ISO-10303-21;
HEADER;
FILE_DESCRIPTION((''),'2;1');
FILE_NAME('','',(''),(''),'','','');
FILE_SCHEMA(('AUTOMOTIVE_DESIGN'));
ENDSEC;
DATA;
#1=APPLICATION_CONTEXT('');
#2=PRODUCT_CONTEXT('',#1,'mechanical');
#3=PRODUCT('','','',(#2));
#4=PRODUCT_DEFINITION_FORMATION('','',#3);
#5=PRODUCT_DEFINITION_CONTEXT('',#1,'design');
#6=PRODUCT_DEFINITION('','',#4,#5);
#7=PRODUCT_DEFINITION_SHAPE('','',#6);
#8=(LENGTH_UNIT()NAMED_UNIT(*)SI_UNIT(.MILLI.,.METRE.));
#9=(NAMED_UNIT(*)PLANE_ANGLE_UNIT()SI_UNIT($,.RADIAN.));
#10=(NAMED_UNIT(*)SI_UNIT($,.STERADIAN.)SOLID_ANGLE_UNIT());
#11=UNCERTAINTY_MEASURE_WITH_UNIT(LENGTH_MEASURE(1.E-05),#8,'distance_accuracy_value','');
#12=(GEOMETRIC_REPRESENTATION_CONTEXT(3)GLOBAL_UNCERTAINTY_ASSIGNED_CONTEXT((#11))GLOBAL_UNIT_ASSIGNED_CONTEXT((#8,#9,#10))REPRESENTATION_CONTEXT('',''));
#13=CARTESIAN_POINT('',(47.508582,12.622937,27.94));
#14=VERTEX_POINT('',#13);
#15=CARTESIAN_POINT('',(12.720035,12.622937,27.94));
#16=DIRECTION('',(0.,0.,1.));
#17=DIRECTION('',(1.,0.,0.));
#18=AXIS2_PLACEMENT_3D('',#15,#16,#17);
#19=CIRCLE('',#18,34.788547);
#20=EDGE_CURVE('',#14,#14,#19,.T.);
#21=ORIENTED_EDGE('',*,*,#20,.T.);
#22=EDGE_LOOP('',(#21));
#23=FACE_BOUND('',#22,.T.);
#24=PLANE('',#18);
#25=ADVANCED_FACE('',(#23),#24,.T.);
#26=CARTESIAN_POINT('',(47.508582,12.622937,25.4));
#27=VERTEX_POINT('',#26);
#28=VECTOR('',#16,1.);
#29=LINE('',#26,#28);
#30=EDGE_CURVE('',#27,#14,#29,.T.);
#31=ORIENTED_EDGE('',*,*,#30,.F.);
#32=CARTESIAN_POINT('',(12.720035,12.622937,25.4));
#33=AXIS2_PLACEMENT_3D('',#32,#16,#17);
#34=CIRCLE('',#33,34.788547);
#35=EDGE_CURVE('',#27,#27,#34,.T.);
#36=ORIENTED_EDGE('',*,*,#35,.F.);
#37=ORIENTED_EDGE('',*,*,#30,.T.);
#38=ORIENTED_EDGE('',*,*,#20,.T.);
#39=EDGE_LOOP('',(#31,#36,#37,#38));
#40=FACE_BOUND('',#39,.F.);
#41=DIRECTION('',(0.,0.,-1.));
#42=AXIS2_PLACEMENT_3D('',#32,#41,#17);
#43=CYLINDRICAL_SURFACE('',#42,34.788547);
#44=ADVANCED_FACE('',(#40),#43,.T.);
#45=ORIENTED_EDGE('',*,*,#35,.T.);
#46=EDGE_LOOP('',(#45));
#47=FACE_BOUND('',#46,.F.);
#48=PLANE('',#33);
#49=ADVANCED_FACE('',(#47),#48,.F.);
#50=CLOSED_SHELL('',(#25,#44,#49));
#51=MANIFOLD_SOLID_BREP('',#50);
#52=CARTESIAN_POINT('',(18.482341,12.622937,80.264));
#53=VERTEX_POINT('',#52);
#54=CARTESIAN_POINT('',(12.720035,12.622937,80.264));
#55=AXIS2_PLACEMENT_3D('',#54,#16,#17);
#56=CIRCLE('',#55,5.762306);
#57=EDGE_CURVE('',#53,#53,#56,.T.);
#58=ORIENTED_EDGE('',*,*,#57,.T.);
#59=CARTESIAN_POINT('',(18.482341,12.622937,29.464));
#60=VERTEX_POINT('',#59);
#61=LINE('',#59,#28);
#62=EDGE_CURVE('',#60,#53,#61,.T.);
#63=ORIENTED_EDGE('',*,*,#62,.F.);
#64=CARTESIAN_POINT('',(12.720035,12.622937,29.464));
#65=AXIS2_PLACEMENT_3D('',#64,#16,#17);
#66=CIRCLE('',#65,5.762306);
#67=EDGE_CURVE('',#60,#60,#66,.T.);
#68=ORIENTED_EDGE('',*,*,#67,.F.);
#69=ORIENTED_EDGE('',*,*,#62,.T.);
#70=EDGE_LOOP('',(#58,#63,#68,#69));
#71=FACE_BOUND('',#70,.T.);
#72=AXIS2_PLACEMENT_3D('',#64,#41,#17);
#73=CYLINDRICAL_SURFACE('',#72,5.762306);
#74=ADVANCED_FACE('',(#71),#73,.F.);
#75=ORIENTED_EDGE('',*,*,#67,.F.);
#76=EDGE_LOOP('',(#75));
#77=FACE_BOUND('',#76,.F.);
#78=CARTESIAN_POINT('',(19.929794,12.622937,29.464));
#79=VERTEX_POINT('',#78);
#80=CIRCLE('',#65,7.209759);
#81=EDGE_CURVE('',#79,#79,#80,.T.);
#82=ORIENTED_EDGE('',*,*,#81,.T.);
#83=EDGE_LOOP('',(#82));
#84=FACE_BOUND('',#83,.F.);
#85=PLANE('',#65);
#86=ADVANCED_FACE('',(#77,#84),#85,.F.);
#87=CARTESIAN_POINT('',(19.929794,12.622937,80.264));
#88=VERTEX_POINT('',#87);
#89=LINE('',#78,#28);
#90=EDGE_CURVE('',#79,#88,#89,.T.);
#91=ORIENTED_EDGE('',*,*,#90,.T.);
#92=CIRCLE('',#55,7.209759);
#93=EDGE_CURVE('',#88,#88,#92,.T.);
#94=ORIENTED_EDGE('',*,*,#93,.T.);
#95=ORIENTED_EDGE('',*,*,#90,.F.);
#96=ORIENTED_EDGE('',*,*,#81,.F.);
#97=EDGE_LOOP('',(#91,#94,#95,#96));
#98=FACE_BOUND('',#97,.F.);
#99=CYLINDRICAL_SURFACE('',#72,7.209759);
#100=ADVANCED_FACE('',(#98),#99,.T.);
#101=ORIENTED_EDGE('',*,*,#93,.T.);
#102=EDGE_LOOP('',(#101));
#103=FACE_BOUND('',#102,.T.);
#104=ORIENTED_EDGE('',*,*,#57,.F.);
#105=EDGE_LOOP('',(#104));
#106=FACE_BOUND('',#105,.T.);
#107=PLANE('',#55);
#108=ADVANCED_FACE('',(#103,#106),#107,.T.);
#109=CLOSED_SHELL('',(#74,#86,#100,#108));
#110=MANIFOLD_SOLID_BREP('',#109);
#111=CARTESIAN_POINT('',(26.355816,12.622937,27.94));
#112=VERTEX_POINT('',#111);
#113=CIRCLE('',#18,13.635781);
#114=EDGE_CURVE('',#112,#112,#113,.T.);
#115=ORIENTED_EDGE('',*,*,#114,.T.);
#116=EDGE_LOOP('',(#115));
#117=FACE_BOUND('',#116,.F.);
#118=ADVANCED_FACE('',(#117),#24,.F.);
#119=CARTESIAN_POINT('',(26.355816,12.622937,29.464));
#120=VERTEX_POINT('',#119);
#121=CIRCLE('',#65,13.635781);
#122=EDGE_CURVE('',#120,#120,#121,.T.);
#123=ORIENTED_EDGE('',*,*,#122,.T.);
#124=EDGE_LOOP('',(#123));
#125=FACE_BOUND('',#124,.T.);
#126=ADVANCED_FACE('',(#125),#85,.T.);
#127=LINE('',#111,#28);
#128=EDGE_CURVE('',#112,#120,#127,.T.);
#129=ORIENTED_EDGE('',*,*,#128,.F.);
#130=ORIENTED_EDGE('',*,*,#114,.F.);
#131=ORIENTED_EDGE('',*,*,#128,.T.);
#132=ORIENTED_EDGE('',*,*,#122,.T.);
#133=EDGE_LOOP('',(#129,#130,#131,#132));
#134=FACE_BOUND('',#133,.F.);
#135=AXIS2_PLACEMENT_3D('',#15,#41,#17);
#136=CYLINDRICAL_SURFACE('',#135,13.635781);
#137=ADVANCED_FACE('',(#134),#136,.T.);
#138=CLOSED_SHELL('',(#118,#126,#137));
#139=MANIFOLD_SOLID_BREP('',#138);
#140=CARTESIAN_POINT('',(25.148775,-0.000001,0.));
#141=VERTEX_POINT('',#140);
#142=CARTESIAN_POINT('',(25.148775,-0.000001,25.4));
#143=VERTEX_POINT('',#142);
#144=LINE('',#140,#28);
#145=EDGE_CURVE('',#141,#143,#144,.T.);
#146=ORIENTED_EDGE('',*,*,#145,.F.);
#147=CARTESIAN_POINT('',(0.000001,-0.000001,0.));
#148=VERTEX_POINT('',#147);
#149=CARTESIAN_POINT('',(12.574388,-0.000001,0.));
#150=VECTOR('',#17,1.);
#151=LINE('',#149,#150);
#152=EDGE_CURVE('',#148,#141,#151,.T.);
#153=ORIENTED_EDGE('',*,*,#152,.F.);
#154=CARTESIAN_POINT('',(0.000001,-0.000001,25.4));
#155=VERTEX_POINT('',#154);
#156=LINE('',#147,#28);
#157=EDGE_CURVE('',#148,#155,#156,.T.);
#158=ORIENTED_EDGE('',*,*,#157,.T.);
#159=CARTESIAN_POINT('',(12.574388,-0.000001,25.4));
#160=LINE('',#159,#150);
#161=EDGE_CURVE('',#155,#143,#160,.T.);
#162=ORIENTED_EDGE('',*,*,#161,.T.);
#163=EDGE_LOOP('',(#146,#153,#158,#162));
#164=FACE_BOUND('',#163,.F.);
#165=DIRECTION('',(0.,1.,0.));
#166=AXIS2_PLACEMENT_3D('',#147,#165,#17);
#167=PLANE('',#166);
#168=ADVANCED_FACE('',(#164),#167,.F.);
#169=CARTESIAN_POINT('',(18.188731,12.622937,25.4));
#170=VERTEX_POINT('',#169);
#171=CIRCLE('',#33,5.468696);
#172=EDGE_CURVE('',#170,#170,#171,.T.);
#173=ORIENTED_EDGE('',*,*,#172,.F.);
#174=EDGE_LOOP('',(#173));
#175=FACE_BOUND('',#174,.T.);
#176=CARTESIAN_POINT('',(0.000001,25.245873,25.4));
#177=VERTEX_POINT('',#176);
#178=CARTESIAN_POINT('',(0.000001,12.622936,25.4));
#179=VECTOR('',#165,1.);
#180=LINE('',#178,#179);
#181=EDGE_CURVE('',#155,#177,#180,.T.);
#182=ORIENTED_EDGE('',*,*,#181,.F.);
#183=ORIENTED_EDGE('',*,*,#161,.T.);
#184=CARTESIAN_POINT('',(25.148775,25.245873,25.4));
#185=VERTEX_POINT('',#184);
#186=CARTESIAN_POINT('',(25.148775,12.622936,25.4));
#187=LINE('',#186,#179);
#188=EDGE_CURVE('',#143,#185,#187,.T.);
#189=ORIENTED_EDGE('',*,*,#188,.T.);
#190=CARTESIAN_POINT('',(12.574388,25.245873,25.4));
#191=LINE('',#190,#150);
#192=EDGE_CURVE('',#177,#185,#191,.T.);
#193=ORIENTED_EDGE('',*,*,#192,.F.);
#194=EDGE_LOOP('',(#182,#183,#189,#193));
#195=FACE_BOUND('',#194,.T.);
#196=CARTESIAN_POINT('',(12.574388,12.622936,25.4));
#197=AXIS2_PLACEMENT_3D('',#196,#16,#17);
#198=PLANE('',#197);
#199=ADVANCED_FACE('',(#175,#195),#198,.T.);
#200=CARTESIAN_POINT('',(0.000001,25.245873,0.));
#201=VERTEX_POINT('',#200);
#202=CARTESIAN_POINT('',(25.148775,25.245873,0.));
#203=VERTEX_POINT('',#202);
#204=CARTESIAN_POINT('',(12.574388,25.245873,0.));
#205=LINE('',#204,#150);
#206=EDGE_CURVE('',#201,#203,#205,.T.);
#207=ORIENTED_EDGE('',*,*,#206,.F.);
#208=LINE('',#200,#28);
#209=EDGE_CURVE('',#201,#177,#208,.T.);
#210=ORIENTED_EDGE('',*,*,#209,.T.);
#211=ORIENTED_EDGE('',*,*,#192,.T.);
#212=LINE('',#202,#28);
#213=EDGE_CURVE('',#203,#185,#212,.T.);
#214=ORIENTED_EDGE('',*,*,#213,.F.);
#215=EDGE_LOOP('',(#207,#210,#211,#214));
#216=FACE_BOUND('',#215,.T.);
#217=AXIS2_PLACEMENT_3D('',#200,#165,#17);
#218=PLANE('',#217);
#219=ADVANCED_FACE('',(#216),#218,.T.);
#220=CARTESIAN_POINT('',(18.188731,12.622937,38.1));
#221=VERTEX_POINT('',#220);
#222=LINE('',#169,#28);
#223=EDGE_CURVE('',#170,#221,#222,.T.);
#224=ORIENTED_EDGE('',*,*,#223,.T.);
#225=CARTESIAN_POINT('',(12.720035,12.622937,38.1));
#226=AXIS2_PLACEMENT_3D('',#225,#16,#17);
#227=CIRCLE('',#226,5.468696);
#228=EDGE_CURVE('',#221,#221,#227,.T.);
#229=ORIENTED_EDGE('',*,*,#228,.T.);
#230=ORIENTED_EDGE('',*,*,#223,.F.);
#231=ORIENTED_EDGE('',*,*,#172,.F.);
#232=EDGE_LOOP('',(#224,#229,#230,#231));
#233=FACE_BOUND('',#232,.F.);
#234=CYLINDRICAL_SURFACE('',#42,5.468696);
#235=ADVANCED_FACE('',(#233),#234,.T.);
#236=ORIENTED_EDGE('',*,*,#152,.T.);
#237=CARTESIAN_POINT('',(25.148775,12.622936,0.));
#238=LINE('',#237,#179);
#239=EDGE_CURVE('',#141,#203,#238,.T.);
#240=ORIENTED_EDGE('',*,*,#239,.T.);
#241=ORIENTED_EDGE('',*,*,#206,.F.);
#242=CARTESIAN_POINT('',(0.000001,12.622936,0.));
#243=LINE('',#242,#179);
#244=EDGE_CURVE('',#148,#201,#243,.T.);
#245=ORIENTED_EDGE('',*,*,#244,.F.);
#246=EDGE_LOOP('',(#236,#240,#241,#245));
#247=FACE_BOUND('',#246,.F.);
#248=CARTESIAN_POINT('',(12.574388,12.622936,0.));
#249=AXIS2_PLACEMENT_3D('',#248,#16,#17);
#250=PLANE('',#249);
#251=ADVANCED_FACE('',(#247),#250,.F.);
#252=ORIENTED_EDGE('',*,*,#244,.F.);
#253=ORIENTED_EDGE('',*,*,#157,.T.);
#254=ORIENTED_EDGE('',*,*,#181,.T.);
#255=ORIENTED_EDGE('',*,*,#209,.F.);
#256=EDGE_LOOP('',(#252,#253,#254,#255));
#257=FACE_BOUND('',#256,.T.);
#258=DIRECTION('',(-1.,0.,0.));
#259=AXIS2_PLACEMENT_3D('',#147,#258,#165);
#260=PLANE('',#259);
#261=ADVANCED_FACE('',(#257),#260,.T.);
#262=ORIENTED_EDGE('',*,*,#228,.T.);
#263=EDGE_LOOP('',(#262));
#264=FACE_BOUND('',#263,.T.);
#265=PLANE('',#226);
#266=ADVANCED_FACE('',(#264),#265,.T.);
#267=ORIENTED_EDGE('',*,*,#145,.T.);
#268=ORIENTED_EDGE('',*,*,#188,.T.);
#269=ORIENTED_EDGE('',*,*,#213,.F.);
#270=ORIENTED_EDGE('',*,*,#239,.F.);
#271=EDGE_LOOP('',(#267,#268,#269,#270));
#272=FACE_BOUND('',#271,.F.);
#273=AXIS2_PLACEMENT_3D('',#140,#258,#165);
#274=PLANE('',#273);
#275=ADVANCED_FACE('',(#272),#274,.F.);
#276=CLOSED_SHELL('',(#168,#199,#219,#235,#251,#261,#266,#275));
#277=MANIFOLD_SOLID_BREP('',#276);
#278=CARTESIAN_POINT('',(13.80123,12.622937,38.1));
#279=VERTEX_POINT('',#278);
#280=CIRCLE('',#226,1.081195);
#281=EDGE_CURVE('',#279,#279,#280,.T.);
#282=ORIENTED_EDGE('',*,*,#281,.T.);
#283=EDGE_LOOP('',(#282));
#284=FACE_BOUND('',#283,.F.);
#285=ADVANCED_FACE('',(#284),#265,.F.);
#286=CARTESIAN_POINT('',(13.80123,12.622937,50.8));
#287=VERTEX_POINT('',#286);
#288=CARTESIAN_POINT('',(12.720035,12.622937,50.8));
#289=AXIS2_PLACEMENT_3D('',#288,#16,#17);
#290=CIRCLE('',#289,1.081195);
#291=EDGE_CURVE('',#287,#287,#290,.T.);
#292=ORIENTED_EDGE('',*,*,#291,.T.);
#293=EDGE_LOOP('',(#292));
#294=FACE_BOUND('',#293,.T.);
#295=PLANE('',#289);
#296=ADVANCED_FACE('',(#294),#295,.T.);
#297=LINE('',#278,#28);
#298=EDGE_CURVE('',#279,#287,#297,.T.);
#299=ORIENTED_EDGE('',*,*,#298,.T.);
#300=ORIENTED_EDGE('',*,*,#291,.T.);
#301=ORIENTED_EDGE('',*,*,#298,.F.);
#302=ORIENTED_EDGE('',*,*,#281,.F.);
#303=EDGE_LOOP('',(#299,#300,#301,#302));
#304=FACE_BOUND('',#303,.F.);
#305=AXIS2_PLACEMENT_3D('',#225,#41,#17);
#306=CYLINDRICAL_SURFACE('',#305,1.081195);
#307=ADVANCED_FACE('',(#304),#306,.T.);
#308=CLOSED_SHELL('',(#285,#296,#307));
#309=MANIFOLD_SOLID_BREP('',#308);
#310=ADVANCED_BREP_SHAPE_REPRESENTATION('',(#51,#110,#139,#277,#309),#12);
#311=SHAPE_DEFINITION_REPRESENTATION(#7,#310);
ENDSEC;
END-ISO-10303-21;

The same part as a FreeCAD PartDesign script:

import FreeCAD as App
import Part
import Sketcher

V = App.Vector
Q = App.Units.Quantity

doc = App.newDocument("Part")
body = doc.addObject("PartDesign::Body", "Body")

sketch1 = body.newObject("Sketcher::SketchObject", "Sketch")
sketch1.AttachmentSupport = (doc.getObject("XY_Plane"), [""])
sketch1.MapMode = "FlatFace"
sketch1.addGeometry([
    Part.LineSegment(V(0, 25.245873, 0), V(0, 0, 0)),
    Part.LineSegment(V(0, 0, 0), V(25.148775, 0, 0)),
    Part.LineSegment(V(25.148775, 0, 0), V(25.148775, 25.245873, 0)),
    Part.LineSegment(V(25.148775, 25.245873, 0), V(0, 25.245873, 0)),
], False)
sketch1.addConstraint([
    Sketcher.Constraint("Coincident", 0, 2, 1, 1),
    Sketcher.Constraint("Coincident", 1, 2, 2, 1),
    Sketcher.Constraint("Coincident", 2, 2, 3, 1),
    Sketcher.Constraint("Coincident", 3, 2, 0, 1),
    Sketcher.Constraint("Vertical", 0),
    Sketcher.Constraint("Horizontal", 1),
    Sketcher.Constraint("Vertical", 2),
    Sketcher.Constraint("Horizontal", 3),
    Sketcher.Constraint("Coincident", 0, 2, -1, 1),
    Sketcher.Constraint("DistanceX", 1, 1, 1, 2, Q("25.148775 mm")),
    Sketcher.Constraint("DistanceY", 0, 2, 0, 1, Q("25.245873 mm")),
])
pad1 = body.newObject("PartDesign::Pad", "Pad")
pad1.Profile = sketch1
pad1.Length = Q("1 in")

sketch2 = body.newObject("Sketcher::SketchObject", "Sketch001")
sketch2.AttachmentSupport = (doc.getObject("XY_Plane"), [""])
sketch2.MapMode = "FlatFace"
sketch2.AttachmentOffset = App.Placement(V(0, 0, 1 * 25.4), App.Rotation())
sketch2.addGeometry(Part.Circle(V(12.720035, 12.622937, 0), V(0, 0, 1), 5.468696), False)
sketch2.addConstraint([
    Sketcher.Constraint("Diameter", 0, Q("10.937392 mm")),
    Sketcher.Constraint("DistanceX", -1, 1, 0, 3, Q("12.720035 mm")),
    Sketcher.Constraint("DistanceY", -1, 1, 0, 3, Q("12.622937 mm")),
])
pad2 = body.newObject("PartDesign::Pad", "Pad001")
pad2.Profile = sketch2
pad2.Length = Q("0.5 in")
body2 = doc.addObject("PartDesign::Body", "Body001")

sketch3 = body2.newObject("Sketcher::SketchObject", "Sketch002")
sketch3.AttachmentSupport = (doc.getObject("XY_Plane001"), [""])
sketch3.MapMode = "FlatFace"
sketch3.AttachmentOffset = App.Placement(V(0, 0, 1.5 * 25.4), App.Rotation())
sketch3.addGeometry(Part.Circle(V(12.720035, 12.622937, 0), V(0, 0, 1), 1.081195), False)
sketch3.addConstraint([
    Sketcher.Constraint("Diameter", 0, Q("2.16239 mm")),
    Sketcher.Constraint("DistanceX", -1, 1, 0, 3, Q("12.720035 mm")),
    Sketcher.Constraint("DistanceY", -1, 1, 0, 3, Q("12.622937 mm")),
])
pad3 = body2.newObject("PartDesign::Pad", "Pad002")
pad3.Profile = sketch3
pad3.Length = Q("0.5 in")
body3 = doc.addObject("PartDesign::Body", "Body002")

sketch4 = body3.newObject("Sketcher::SketchObject", "Sketch003")
sketch4.AttachmentSupport = (doc.getObject("XY_Plane002"), [""])
sketch4.MapMode = "FlatFace"
sketch4.AttachmentOffset = App.Placement(V(0, 0, 1 * 25.4), App.Rotation())
sketch4.addGeometry(Part.Circle(V(12.720035, 12.622937, 0), V(0, 0, 1), 34.788547), False)
sketch4.addConstraint([
    Sketcher.Constraint("Diameter", 0, Q("69.577094 mm")),
    Sketcher.Constraint("DistanceX", -1, 1, 0, 3, Q("12.720035 mm")),
    Sketcher.Constraint("DistanceY", -1, 1, 0, 3, Q("12.622937 mm")),
])
pad4 = body3.newObject("PartDesign::Pad", "Pad003")
pad4.Profile = sketch4
pad4.Length = Q("0.1 in")
body4 = doc.addObject("PartDesign::Body", "Body003")

sketch5 = body4.newObject("Sketcher::SketchObject", "Sketch004")
sketch5.AttachmentSupport = (doc.getObject("XY_Plane003"), [""])
sketch5.MapMode = "FlatFace"
sketch5.AttachmentOffset = App.Placement(V(0, 0, 1.1 * 25.4), App.Rotation())
sketch5.addGeometry(Part.Circle(V(12.720035, 12.622937, 0), V(0, 0, 1), 13.635781), False)
sketch5.addConstraint([
    Sketcher.Constraint("Diameter", 0, Q("27.271562 mm")),
    Sketcher.Constraint("DistanceX", -1, 1, 0, 3, Q("12.720035 mm")),
    Sketcher.Constraint("DistanceY", -1, 1, 0, 3, Q("12.622937 mm")),
])
pad5 = body4.newObject("PartDesign::Pad", "Pad004")
pad5.Profile = sketch5
pad5.Length = Q("0.06 in")
body5 = doc.addObject("PartDesign::Body", "Body004")

sketch6 = body5.newObject("Sketcher::SketchObject", "Sketch005")
sketch6.AttachmentSupport = (doc.getObject("XY_Plane004"), [""])
sketch6.MapMode = "FlatFace"
sketch6.AttachmentOffset = App.Placement(V(0, 0, 1.16 * 25.4), App.Rotation())
sketch6.addGeometry([
    Part.Circle(V(12.720035, 12.622937, 0), V(0, 0, 1), 7.209759),
    Part.Circle(V(12.720035, 12.622937, 0), V(0, 0, 1), 5.762306),
], False)
sketch6.addConstraint([
    Sketcher.Constraint("Coincident", 1, 3, 0, 3),
    Sketcher.Constraint("Diameter", 0, Q("14.419518 mm")),
    Sketcher.Constraint("Diameter", 1, Q("11.524612 mm")),
    Sketcher.Constraint("DistanceX", -1, 1, 0, 3, Q("12.720035 mm")),
    Sketcher.Constraint("DistanceY", -1, 1, 0, 3, Q("12.622937 mm")),
])
pad6 = body5.newObject("PartDesign::Pad", "Pad005")
pad6.Profile = sketch6
pad6.Length = Q("2 in")

doc.recompute()
